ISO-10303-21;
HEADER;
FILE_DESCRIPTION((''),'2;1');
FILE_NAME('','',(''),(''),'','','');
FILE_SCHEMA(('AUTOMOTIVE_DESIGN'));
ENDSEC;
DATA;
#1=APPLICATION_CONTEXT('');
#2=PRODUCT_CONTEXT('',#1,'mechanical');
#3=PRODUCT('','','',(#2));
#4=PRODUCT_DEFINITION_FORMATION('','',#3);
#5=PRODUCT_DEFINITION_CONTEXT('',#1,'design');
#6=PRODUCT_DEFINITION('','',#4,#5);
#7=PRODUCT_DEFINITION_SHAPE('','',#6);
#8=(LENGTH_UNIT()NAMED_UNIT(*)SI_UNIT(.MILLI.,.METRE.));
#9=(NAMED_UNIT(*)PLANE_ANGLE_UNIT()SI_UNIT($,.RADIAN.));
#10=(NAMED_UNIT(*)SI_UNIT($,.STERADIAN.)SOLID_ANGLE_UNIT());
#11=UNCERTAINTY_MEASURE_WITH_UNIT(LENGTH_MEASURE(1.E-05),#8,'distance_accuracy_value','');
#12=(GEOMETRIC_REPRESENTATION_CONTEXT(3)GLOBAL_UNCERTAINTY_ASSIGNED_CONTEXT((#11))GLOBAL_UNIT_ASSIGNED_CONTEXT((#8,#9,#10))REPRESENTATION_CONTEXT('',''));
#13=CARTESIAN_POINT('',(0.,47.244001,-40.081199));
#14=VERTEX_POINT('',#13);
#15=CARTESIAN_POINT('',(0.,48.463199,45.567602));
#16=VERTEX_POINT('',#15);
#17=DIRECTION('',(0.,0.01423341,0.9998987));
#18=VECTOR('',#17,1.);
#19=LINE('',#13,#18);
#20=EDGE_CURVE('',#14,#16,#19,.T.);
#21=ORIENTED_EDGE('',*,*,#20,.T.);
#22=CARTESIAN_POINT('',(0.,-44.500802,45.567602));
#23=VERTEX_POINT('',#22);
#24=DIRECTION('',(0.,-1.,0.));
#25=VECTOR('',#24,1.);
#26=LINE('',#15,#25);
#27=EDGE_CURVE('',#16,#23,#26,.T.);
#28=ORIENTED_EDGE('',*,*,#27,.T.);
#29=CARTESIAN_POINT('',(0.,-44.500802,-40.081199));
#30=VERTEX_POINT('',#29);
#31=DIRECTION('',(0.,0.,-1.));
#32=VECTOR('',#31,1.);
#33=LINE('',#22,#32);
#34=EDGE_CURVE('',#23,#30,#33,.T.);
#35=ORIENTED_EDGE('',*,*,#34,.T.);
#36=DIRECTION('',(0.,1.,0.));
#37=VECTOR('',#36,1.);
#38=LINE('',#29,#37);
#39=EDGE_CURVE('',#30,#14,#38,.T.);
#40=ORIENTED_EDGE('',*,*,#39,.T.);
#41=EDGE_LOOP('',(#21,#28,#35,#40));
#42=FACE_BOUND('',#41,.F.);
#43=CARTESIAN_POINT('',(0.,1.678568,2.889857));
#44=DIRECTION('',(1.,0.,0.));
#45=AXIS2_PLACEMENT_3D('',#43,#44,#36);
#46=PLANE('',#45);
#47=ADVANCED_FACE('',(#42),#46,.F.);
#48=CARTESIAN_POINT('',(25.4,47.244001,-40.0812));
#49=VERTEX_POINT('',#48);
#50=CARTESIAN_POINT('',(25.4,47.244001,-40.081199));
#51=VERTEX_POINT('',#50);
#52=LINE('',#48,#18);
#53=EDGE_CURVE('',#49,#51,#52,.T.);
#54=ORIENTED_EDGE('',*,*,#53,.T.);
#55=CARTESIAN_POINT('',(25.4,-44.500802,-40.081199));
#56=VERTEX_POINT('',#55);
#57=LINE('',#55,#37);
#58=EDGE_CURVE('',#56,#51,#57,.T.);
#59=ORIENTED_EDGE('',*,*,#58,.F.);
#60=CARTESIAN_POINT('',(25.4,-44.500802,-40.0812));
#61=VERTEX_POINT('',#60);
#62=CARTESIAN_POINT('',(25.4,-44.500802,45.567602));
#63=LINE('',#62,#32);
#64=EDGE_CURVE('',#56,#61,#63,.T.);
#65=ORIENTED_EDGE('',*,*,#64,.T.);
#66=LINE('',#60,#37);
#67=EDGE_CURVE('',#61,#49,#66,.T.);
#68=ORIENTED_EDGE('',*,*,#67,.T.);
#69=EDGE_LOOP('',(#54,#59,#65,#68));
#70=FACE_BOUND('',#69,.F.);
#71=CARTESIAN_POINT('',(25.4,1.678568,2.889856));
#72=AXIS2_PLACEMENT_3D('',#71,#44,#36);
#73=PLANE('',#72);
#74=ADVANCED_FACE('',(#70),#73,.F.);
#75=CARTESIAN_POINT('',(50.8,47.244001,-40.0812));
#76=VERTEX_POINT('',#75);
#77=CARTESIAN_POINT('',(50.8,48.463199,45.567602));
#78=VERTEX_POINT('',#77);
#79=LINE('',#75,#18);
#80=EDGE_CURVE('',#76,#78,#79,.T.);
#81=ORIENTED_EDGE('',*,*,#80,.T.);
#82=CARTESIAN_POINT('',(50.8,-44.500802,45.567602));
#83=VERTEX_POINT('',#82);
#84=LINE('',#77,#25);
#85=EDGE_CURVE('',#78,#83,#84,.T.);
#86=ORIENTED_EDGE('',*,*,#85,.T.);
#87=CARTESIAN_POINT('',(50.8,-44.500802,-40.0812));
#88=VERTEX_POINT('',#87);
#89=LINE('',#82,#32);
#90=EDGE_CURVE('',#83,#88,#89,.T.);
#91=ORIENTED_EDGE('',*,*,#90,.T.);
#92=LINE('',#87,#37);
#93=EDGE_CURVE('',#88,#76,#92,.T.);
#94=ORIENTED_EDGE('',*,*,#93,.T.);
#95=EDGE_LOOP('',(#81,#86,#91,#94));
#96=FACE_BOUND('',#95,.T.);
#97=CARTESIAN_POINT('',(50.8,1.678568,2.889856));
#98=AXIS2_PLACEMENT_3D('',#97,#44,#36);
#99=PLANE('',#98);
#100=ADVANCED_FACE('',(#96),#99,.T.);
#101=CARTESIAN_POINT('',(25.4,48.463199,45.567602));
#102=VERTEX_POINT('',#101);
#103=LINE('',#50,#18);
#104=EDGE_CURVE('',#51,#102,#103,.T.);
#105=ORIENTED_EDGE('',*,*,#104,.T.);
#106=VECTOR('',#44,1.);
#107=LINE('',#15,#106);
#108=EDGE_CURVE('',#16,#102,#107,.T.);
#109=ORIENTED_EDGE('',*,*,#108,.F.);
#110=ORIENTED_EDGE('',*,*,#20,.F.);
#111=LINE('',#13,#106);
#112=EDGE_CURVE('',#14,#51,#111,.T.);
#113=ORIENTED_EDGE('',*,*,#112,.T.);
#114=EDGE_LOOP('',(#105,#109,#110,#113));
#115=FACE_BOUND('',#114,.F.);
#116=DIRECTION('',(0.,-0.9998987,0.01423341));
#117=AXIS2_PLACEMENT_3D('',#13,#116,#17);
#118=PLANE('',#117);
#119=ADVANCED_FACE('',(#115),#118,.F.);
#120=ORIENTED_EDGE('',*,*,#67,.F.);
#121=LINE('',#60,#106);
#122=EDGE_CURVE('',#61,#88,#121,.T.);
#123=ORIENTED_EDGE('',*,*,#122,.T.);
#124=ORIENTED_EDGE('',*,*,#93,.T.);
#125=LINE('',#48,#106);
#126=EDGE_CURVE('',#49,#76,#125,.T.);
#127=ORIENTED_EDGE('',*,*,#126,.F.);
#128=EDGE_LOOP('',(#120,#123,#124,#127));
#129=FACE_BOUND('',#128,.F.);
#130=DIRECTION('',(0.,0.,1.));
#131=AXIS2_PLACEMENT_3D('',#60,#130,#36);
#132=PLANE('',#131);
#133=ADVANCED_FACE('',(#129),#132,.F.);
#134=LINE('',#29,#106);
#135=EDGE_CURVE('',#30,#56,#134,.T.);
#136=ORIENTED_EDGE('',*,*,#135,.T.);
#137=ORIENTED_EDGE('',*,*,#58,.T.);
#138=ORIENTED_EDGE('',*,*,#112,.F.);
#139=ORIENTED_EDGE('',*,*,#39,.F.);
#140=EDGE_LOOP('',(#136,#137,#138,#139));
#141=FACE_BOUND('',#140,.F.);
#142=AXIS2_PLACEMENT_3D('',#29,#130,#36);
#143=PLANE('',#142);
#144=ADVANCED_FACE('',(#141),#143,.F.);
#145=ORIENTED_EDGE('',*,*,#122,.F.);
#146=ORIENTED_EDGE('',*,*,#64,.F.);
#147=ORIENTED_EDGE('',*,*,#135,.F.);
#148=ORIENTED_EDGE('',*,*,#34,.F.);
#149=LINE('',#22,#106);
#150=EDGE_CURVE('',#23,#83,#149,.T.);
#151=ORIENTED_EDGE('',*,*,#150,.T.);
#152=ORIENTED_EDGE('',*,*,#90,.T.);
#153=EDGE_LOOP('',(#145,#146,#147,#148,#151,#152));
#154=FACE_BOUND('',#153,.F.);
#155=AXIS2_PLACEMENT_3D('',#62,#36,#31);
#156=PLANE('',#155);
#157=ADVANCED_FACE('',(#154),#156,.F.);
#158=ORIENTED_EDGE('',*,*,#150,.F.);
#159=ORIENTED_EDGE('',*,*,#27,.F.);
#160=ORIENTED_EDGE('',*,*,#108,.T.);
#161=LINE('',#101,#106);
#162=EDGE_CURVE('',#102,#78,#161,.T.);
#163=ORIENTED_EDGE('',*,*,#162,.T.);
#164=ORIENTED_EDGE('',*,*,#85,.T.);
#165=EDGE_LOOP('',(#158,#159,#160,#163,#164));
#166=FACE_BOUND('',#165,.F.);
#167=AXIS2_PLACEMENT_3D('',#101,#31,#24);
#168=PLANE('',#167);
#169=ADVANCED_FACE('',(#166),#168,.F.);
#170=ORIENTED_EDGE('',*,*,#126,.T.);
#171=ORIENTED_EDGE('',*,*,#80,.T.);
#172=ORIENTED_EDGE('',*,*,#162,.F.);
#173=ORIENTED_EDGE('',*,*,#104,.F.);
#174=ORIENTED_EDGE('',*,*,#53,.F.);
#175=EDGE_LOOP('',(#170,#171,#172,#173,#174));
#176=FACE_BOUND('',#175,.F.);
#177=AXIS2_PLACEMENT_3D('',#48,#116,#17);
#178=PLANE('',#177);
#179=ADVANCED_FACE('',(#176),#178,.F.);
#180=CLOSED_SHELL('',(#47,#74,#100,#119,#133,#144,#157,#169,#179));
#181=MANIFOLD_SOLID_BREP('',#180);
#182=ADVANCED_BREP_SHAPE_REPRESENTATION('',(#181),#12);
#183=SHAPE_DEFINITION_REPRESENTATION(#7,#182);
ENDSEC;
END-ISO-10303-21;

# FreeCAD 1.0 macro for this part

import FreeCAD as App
import Part
import Sketcher

V = App.Vector
Q = App.Units.Quantity


def add_polygon(sketch, points):
    """Adds a closed chain of lines whose ends are joined by coincident constraints."""
    first, n = sketch.GeometryCount, len(points)
    for a, b in zip(points, points[1:] + points[:1]):
        sketch.addGeometry(Part.LineSegment(App.Vector(*a, 0), App.Vector(*b, 0)), False)
    for i in range(n):
        sketch.addConstraint(Sketcher.Constraint("Coincident", first + i, 2, first + (i + 1) % n, 1))

doc = App.newDocument("Part")
body = doc.addObject("PartDesign::Body", "Body")

sketch1 = body.newObject("Sketcher::SketchObject", "Sketch")
sketch1.AttachmentSupport = (doc.getObject("YZ_Plane"), [""])
sketch1.MapMode = "FlatFace"
add_polygon(sketch1, [(48.463199, 45.567602), (-44.500802, 45.567602), (-44.500802, -40.081199), (47.244001, -40.081199)])
sketch1.addConstraint(Sketcher.Constraint("Horizontal", 0))
sketch1.addConstraint(Sketcher.Constraint("Vertical", 1))
sketch1.addConstraint(Sketcher.Constraint("Horizontal", 2))
sketch1.addConstraint(Sketcher.Constraint("DistanceX", 0, 2, 0, 1, Q("3.66 in")))
sketch1.addConstraint(Sketcher.Constraint("DistanceX", 2, 1, 2, 2, Q("3.6120001 in")))
sketch1.addConstraint(Sketcher.Constraint("DistanceY", 1, 2, 1, 1, Q("3.372 in")))
sketch1.addConstraint(Sketcher.Constraint("DistanceX", -1, 1, 2, 2, Q("1.86 in")))
sketch1.addConstraint(Sketcher.Constraint("DistanceY", -1, 1, 0, 2, Q("1.7940001 in")))
pad1 = body.newObject("PartDesign::Pad", "Pad")
pad1.Profile = sketch1
pad1.Length = Q("1 in")

sketch2 = body.newObject("Sketcher::SketchObject", "Sketch001")
sketch2.AttachmentSupport = (doc.getObject("YZ_Plane"), [""])
sketch2.MapMode = "FlatFace"
sketch2.AttachmentOffset = App.Placement(V(0, 0, 1 * 25.4), App.Rotation())
add_polygon(sketch2, [(48.463199, 45.567602), (-44.500802, 45.567602), (-44.500802, -40.0812), (47.244001, -40.0812)])
sketch2.addConstraint(Sketcher.Constraint("Horizontal", 0))
sketch2.addConstraint(Sketcher.Constraint("Vertical", 1))
sketch2.addConstraint(Sketcher.Constraint("Horizontal", 2))
sketch2.addConstraint(Sketcher.Constraint("DistanceX", 0, 2, 0, 1, Q("3.66 in")))
sketch2.addConstraint(Sketcher.Constraint("DistanceX", 2, 1, 2, 2, Q("3.6120001 in")))
sketch2.addConstraint(Sketcher.Constraint("DistanceY", 1, 2, 1, 1, Q("3.3720001 in")))
sketch2.addConstraint(Sketcher.Constraint("DistanceX", -1, 1, 2, 2, Q("1.86 in")))
sketch2.addConstraint(Sketcher.Constraint("DistanceY", -1, 1, 0, 2, Q("1.7940001 in")))
pad2 = body.newObject("PartDesign::Pad", "Pad001")
pad2.Profile = sketch2
pad2.Length = Q("1 in")

doc.recompute()
